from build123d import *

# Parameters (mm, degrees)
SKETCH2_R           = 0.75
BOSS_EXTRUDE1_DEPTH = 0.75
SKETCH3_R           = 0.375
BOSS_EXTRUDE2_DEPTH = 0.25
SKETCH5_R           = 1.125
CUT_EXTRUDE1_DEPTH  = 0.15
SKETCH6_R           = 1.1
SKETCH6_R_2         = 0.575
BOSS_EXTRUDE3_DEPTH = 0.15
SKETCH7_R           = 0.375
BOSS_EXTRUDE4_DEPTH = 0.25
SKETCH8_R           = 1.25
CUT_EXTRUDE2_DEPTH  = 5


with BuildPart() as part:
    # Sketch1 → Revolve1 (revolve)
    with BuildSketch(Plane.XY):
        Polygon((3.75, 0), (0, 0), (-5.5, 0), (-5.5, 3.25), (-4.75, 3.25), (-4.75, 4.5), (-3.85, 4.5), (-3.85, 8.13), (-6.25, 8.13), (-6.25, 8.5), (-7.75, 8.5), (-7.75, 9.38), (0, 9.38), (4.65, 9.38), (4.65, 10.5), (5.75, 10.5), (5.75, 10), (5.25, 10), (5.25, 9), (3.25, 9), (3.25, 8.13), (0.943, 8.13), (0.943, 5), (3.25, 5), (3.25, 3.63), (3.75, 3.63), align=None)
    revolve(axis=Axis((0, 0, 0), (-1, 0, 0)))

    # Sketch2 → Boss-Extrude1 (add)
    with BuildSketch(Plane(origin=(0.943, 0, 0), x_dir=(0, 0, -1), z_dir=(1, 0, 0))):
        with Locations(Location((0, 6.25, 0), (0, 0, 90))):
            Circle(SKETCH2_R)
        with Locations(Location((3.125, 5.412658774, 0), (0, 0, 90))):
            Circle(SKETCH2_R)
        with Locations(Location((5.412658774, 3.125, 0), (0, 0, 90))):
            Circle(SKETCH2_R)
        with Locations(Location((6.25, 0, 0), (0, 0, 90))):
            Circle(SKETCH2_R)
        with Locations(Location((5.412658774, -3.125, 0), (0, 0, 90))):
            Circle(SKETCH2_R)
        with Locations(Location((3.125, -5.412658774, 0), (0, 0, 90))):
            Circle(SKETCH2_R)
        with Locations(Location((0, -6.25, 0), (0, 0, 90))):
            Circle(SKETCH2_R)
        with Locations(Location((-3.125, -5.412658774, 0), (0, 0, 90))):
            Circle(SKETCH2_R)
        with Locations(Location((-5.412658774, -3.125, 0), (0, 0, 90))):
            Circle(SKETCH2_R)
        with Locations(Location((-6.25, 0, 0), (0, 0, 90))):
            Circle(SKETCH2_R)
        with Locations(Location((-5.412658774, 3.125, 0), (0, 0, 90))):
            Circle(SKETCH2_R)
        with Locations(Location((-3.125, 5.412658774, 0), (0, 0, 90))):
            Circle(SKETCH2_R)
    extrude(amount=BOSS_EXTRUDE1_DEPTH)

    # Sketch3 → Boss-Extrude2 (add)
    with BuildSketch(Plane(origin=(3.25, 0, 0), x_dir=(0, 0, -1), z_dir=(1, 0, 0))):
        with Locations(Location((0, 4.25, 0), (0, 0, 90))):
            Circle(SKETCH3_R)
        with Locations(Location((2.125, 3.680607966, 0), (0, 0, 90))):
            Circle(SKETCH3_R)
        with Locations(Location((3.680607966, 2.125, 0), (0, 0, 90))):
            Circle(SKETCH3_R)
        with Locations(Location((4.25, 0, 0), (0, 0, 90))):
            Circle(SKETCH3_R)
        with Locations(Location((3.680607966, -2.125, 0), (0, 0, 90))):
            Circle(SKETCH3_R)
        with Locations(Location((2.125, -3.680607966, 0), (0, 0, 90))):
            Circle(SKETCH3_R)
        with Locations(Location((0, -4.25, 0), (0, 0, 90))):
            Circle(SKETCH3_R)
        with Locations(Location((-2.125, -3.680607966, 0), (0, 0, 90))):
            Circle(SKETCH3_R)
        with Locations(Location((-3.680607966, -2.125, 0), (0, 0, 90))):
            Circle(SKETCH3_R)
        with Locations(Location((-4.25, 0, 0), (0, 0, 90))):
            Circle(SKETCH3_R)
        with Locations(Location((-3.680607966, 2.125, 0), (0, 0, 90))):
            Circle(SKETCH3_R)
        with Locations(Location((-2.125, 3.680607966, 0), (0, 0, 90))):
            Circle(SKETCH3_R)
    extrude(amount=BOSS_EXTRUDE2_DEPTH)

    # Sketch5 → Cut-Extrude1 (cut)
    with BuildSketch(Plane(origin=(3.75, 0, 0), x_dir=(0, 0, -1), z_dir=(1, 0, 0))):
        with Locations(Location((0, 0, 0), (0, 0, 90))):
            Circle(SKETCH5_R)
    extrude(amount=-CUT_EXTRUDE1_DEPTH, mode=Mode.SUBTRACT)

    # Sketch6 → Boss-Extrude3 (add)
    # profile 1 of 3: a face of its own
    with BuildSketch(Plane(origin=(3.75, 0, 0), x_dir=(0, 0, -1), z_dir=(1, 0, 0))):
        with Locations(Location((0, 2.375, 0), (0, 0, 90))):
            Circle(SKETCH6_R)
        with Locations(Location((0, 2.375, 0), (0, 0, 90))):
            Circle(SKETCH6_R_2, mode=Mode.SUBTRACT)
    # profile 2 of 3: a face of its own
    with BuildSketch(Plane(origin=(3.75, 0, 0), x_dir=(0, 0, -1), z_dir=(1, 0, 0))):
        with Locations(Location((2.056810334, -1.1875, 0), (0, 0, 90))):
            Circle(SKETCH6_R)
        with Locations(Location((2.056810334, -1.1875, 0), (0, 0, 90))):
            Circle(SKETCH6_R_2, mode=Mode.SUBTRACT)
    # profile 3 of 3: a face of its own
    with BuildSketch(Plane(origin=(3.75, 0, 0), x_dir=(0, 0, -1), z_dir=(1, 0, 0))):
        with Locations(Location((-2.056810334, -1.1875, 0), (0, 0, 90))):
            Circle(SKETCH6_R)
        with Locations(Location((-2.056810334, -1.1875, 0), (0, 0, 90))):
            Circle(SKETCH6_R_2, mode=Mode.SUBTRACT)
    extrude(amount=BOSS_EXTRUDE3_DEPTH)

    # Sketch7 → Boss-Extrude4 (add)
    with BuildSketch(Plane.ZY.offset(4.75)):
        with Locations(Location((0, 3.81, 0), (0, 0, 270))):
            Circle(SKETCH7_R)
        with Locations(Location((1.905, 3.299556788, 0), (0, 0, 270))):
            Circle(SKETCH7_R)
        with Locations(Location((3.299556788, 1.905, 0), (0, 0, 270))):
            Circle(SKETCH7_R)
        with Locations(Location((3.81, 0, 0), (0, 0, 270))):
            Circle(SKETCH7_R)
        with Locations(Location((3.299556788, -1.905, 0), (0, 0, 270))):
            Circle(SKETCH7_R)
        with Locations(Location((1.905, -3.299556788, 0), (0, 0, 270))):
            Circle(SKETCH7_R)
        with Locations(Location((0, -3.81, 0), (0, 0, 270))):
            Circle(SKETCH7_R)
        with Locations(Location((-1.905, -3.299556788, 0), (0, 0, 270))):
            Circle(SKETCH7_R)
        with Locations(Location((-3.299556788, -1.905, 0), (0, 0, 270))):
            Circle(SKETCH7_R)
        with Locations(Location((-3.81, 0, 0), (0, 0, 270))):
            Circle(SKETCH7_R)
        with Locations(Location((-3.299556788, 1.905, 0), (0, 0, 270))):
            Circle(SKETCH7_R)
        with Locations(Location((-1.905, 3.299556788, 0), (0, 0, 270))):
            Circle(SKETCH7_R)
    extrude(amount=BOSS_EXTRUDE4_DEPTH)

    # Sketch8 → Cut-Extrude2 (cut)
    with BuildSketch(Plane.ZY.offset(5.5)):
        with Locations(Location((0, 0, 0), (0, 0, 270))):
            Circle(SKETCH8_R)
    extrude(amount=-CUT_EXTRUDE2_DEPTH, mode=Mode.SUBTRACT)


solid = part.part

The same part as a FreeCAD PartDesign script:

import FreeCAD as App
import Part
import Sketcher


def add_polygon(sketch, points):
    """Adds a closed chain of lines whose ends are joined by coincident constraints."""
    first, n = sketch.GeometryCount, len(points)
    for a, b in zip(points, points[1:] + points[:1]):
        sketch.addGeometry(Part.LineSegment(App.Vector(*a, 0), App.Vector(*b, 0)), False)
    for i in range(n):
        sketch.addConstraint(Sketcher.Constraint("Coincident", first + i, 2, first + (i + 1) % n, 1))

doc = App.newDocument("Part")
body = doc.addObject("PartDesign::Body", "Body")

sketch1 = doc.addObject("Sketcher::SketchObject", "Sketch")
body.addObject(sketch1)
sketch1.AttachmentSupport = (doc.XY_Plane, [""])
sketch1.MapMode = "FlatFace"
add_polygon(sketch1, [(-5.5, 0), (3.75, 0), (3.75, 3.63), (3.25, 3.63), (3.25, 5), (0.94, 5), (0.94, 8.13), (3.25, 8.13), (3.25, 9), (5.25, 9), (5.25, 10), (5.75, 10), (5.75, 10.5), (4.65, 10.5), (4.65, 9.38), (-7.75, 9.38), (-7.75, 8.5), (-6.25, 8.5), (-6.25, 8.13), (-3.85, 8.13), (-3.85, 4.5), (-4.75, 4.5), (-4.75, 3.25), (-5.5, 3.25)])
sketch1.addConstraint([
    Sketcher.Constraint("Horizontal", 0),
    Sketcher.Constraint("Vertical", 1),
    Sketcher.Constraint("Horizontal", 2),
    Sketcher.Constraint("Vertical", 3),
    Sketcher.Constraint("Horizontal", 4),
    Sketcher.Constraint("Vertical", 5),
    Sketcher.Constraint("Horizontal", 6),
    Sketcher.Constraint("Vertical", 7),
    Sketcher.Constraint("Horizontal", 8),
    Sketcher.Constraint("Vertical", 9),
    Sketcher.Constraint("Horizontal", 10),
    Sketcher.Constraint("Vertical", 11),
    Sketcher.Constraint("Horizontal", 12),
    Sketcher.Constraint("Vertical", 13),
    Sketcher.Constraint("Horizontal", 14),
    Sketcher.Constraint("Vertical", 15),
    Sketcher.Constraint("Horizontal", 16),
    Sketcher.Constraint("Vertical", 17),
    Sketcher.Constraint("Horizontal", 18),
    Sketcher.Constraint("Vertical", 19),
    Sketcher.Constraint("Horizontal", 20),
    Sketcher.Constraint("Vertical", 21),
    Sketcher.Constraint("Horizontal", 22),
    Sketcher.Constraint("Vertical", 23),
    Sketcher.Constraint("PointOnObject", 0, 2, -1),
    Sketcher.Constraint("Horizontal", 6, 2, 17, 2),
    Sketcher.Constraint("Vertical", 3, 2, 6, 2),
    Sketcher.Constraint("Equal", 2, 10),
    Sketcher.Constraint("Equal", 10, 11),
    Sketcher.Constraint("Equal", 1, 19),
    Sketcher.Constraint("DistanceX", 8, 1, 8, 2, 2.0),
    Sketcher.Constraint("DistanceY", 9, 1, 9, 2, 1.0),
    Sketcher.Constraint("DistanceX", 2, 2, 2, 1, 0.5),
    Sketcher.Constraint("DistanceX", 12, 2, 12, 1, 1.1),
    Sketcher.Constraint("DistanceX", 14, 2, 14, 1, 12.4),
    Sketcher.Constraint("DistanceX", 16, 1, 16, 2, 1.5),
    Sketcher.Constraint("DistanceX", 18, 1, 18, 2, 2.4),
    Sketcher.Constraint("DistanceX", 20, 2, 20, 1, 0.9),
    Sketcher.Constraint("DistanceY", -1, 1, 3, 2, 5.0),
    Sketcher.Constraint("DistanceY", -1, 1, 7, 2, 9.0),
    Sketcher.Constraint("DistanceY", 19, 2, 16, 2, 4.0),
    Sketcher.Constraint("DistanceX", 0, 1, 0, 2, 9.25),
    Sketcher.Constraint("DistanceY", 1, 1, 1, 2, 3.63),
    Sketcher.Constraint("DistanceY", 5, 1, 5, 2, 3.13),
    Sketcher.Constraint("DistanceY", 13, 2, 13, 1, 1.12),
    Sketcher.Constraint("DistanceY", 21, 2, 21, 1, 1.25),
    Sketcher.Constraint("DistanceX", 22, 2, -1, 1, 5.5),
    Sketcher.Constraint("DistanceX", 4, 2, 4, 1, 2.307),
])
revolution = doc.addObject("PartDesign::Revolution", "Revolution")
body.addObject(revolution)
revolution.Profile = sketch1
revolution.ReferenceAxis = (sketch1, ["H_Axis"])
revolution.Angle = 360

sketch2 = doc.addObject("Sketcher::SketchObject", "Sketch001")
body.addObject(sketch2)
sketch2.AttachmentSupport = (doc.YZ_Plane, [""])
sketch2.MapMode = "FlatFace"
sketch2.AttachmentOffset = App.Placement(App.Vector(0, 0, 0.943), App.Rotation())
sketch2.addGeometry([
    Part.Circle(App.Vector(6.2, 0, 0), App.Vector(0, 0, 1), 0.8),
    Part.Circle(App.Vector(5.4, -3.1, 0), App.Vector(0, 0, 1), 0.8),
    Part.Circle(App.Vector(3.1, -5.4, 0), App.Vector(0, 0, 1), 0.8),
    Part.Circle(App.Vector(0, -6.2, 0), App.Vector(0, 0, 1), 0.8),
    Part.Circle(App.Vector(-3.1, -5.4, 0), App.Vector(0, 0, 1), 0.8),
    Part.Circle(App.Vector(-5.4, -3.1, 0), App.Vector(0, 0, 1), 0.8),
    Part.Circle(App.Vector(-6.2, 0, 0), App.Vector(0, 0, 1), 0.8),
    Part.Circle(App.Vector(-5.4, 3.1, 0), App.Vector(0, 0, 1), 0.8),
    Part.Circle(App.Vector(-3.1, 5.4, 0), App.Vector(0, 0, 1), 0.8),
    Part.Circle(App.Vector(0, 6.2, 0), App.Vector(0, 0, 1), 0.8),
    Part.Circle(App.Vector(3.1, 5.4, 0), App.Vector(0, 0, 1), 0.8),
    Part.Circle(App.Vector(5.4, 3.1, 0), App.Vector(0, 0, 1), 0.8),
], False)
sketch2.addConstraint([
    Sketcher.Constraint("Equal", 0, 1),
    Sketcher.Constraint("Equal", 1, 2),
    Sketcher.Constraint("Equal", 2, 3),
    Sketcher.Constraint("Equal", 3, 4),
    Sketcher.Constraint("Equal", 4, 5),
    Sketcher.Constraint("Equal", 5, 6),
    Sketcher.Constraint("Equal", 6, 7),
    Sketcher.Constraint("Equal", 7, 8),
    Sketcher.Constraint("Equal", 8, 9),
    Sketcher.Constraint("Equal", 9, 10),
    Sketcher.Constraint("Equal", 10, 11),
    Sketcher.Constraint("Symmetric", 0, 3, 6, 3, -1, 1),
    Sketcher.Constraint("Symmetric", 1, 3, 7, 3, -1, 1),
    Sketcher.Constraint("Symmetric", 2, 3, 8, 3, -1, 1),
    Sketcher.Constraint("Symmetric", 3, 3, 9, 3, -1, 1),
    Sketcher.Constraint("Symmetric", 4, 3, 10, 3, -1, 1),
    Sketcher.Constraint("Symmetric", 5, 3, 11, 3, -1, 1),
    Sketcher.Constraint("Symmetric", 2, 3, 4, 3, -2),
    Sketcher.Constraint("Symmetric", 1, 3, 5, 3, -2),
    Sketcher.Constraint("PointOnObject", 0, 3, -1),
    Sketcher.Constraint("PointOnObject", 3, 3, -2),
    Sketcher.Constraint("Diameter", 0, 1.5),
    Sketcher.Constraint("DistanceX", -1, 1, 0, 3, 6.25),
    Sketcher.Constraint("DistanceY", 3, 3, -1, 1, 6.25),
    Sketcher.Constraint("DistanceX", 4, 3, 2, 3, 6.25),
    Sketcher.Constraint("DistanceY", 5, 3, 7, 3, 6.25),
    Sketcher.Constraint("DistanceX", -1, 1, 1, 3, 5.412659),
    Sketcher.Constraint("DistanceY", 2, 3, -1, 1, 5.412659),
])
pad1 = doc.addObject("PartDesign::Pad", "Pad")
body.addObject(pad1)
pad1.Profile = sketch2
pad1.Length = 0.75

sketch3 = doc.addObject("Sketcher::SketchObject", "Sketch002")
body.addObject(sketch3)
sketch3.AttachmentSupport = (doc.YZ_Plane, [""])
sketch3.MapMode = "FlatFace"
sketch3.AttachmentOffset = App.Placement(App.Vector(0, 0, 3.25), App.Rotation())
sketch3.addGeometry([
    Part.Circle(App.Vector(4.25, 0, 0), App.Vector(0, 0, 1), 0.38),
    Part.Circle(App.Vector(3.68, -2.12, 0), App.Vector(0, 0, 1), 0.38),
    Part.Circle(App.Vector(2.12, -3.68, 0), App.Vector(0, 0, 1), 0.38),
    Part.Circle(App.Vector(0, -4.25, 0), App.Vector(0, 0, 1), 0.38),
    Part.Circle(App.Vector(-2.12, -3.68, 0), App.Vector(0, 0, 1), 0.38),
    Part.Circle(App.Vector(-3.68, -2.12, 0), App.Vector(0, 0, 1), 0.38),
    Part.Circle(App.Vector(-4.25, 0, 0), App.Vector(0, 0, 1), 0.38),
    Part.Circle(App.Vector(-3.68, 2.12, 0), App.Vector(0, 0, 1), 0.38),
    Part.Circle(App.Vector(-2.12, 3.68, 0), App.Vector(0, 0, 1), 0.38),
    Part.Circle(App.Vector(0, 4.25, 0), App.Vector(0, 0, 1), 0.38),
    Part.Circle(App.Vector(2.12, 3.68, 0), App.Vector(0, 0, 1), 0.38),
    Part.Circle(App.Vector(3.68, 2.12, 0), App.Vector(0, 0, 1), 0.38),
], False)
sketch3.addConstraint([
    Sketcher.Constraint("Equal", 0, 1),
    Sketcher.Constraint("Equal", 1, 2),
    Sketcher.Constraint("Equal", 2, 3),
    Sketcher.Constraint("Equal", 3, 4),
    Sketcher.Constraint("Equal", 4, 5),
    Sketcher.Constraint("Equal", 5, 6),
    Sketcher.Constraint("Equal", 6, 7),
    Sketcher.Constraint("Equal", 7, 8),
    Sketcher.Constraint("Equal", 8, 9),
    Sketcher.Constraint("Equal", 9, 10),
    Sketcher.Constraint("Equal", 10, 11),
    Sketcher.Constraint("Symmetric", 0, 3, 6, 3, -1, 1),
    Sketcher.Constraint("Symmetric", 1, 3, 7, 3, -1, 1),
    Sketcher.Constraint("Symmetric", 2, 3, 8, 3, -1, 1),
    Sketcher.Constraint("Symmetric", 3, 3, 9, 3, -1, 1),
    Sketcher.Constraint("Symmetric", 4, 3, 10, 3, -1, 1),
    Sketcher.Constraint("Symmetric", 5, 3, 11, 3, -1, 1),
    Sketcher.Constraint("Symmetric", 2, 3, 4, 3, -2),
    Sketcher.Constraint("Symmetric", 1, 3, 5, 3, -2),
    Sketcher.Constraint("PointOnObject", 0, 3, -1),
    Sketcher.Constraint("PointOnObject", 3, 3, -2),
    Sketcher.Constraint("Diameter", 0, 0.75),
    Sketcher.Constraint("DistanceX", -1, 1, 0, 3, 4.25),
    Sketcher.Constraint("DistanceY", 3, 3, -1, 1, 4.25),
    Sketcher.Constraint("DistanceX", 4, 3, 2, 3, 4.25),
    Sketcher.Constraint("DistanceY", 5, 3, 7, 3, 4.25),
    Sketcher.Constraint("DistanceX", -1, 1, 1, 3, 3.680608),
    Sketcher.Constraint("DistanceY", 2, 3, -1, 1, 3.680608),
])
pad2 = doc.addObject("PartDesign::Pad", "Pad001")
body.addObject(pad2)
pad2.Profile = sketch3
pad2.Length = 0.25

sketch4 = doc.addObject("Sketcher::SketchObject", "Sketch003")
body.addObject(sketch4)
sketch4.AttachmentSupport = (doc.YZ_Plane, [""])
sketch4.MapMode = "FlatFace"
sketch4.AttachmentOffset = App.Placement(App.Vector(0, 0, 3.75), App.Rotation())
sketch4.addGeometry(Part.Circle(App.Vector(0, 0, 0), App.Vector(0, 0, 1), 1.1), False)
sketch4.addConstraint([
    Sketcher.Constraint("Coincident", 0, 3, -1, 1),
    Sketcher.Constraint("Diameter", 0, 2.25),
])
pocket1 = doc.addObject("PartDesign::Pocket", "Pocket")
body.addObject(pocket1)
pocket1.Profile = sketch4
pocket1.Length = 0.15

sketch5 = doc.addObject("Sketcher::SketchObject", "Sketch004")
body.addObject(sketch5)
sketch5.AttachmentSupport = (doc.YZ_Plane, [""])
sketch5.MapMode = "FlatFace"
sketch5.AttachmentOffset = App.Placement(App.Vector(0, 0, 3.75), App.Rotation())
sketch5.addGeometry([
    Part.Circle(App.Vector(2.4, 0, 0), App.Vector(0, 0, 1), 1.1),
    Part.Circle(App.Vector(2.4, 0, 0), App.Vector(0, 0, 1), 0.6),
    Part.Circle(App.Vector(-1.2, -2.1, 0), App.Vector(0, 0, 1), 1.1),
    Part.Circle(App.Vector(-1.2, -2.1, 0), App.Vector(0, 0, 1), 0.6),
    Part.Circle(App.Vector(-1.2, 2.1, 0), App.Vector(0, 0, 1), 1.1),
    Part.Circle(App.Vector(-1.2, 2.1, 0), App.Vector(0, 0, 1), 0.6),
], False)
sketch5.addConstraint([
    Sketcher.Constraint("Coincident", 1, 3, 0, 3),
    Sketcher.Constraint("Coincident", 3, 3, 2, 3),
    Sketcher.Constraint("Coincident", 5, 3, 4, 3),
    Sketcher.Constraint("Equal", 0, 2),
    Sketcher.Constraint("Equal", 1, 3),
    Sketcher.Constraint("Equal", 2, 4),
    Sketcher.Constraint("Equal", 3, 5),
    Sketcher.Constraint("Symmetric", 2, 3, 4, 3, -1),
    Sketcher.Constraint("PointOnObject", 0, 3, -1),
    Sketcher.Constraint("Diameter", 0, 2.2),
    Sketcher.Constraint("Diameter", 1, 1.15),
    Sketcher.Constraint("DistanceX", -1, 1, 0, 3, 2.375),
    Sketcher.Constraint("DistanceX", 2, 3, -1, 1, 1.1875),
    Sketcher.Constraint("DistanceY", 2, 3, -1, 1, 2.05681),
])
pad3 = doc.addObject("PartDesign::Pad", "Pad002")
body.addObject(pad3)
pad3.Profile = sketch5
pad3.Length = 0.15

sketch6 = doc.addObject("Sketcher::SketchObject", "Sketch005")
body.addObject(sketch6)
sketch6.AttachmentSupport = (doc.YZ_Plane, [""])
sketch6.MapMode = "FlatFace"
sketch6.AttachmentOffset = App.Placement(App.Vector(0, 0, -4.75), App.Rotation())
sketch6.addGeometry([
    Part.Circle(App.Vector(3.81, 0, 0), App.Vector(0, 0, 1), 0.38),
    Part.Circle(App.Vector(3.3, 1.91, 0), App.Vector(0, 0, 1), 0.38),
    Part.Circle(App.Vector(1.91, 3.3, 0), App.Vector(0, 0, 1), 0.38),
    Part.Circle(App.Vector(0, 3.81, 0), App.Vector(0, 0, 1), 0.38),
    Part.Circle(App.Vector(-1.91, 3.3, 0), App.Vector(0, 0, 1), 0.38),
    Part.Circle(App.Vector(-3.3, 1.91, 0), App.Vector(0, 0, 1), 0.38),
    Part.Circle(App.Vector(-3.81, 0, 0), App.Vector(0, 0, 1), 0.38),
    Part.Circle(App.Vector(-3.3, -1.91, 0), App.Vector(0, 0, 1), 0.38),
    Part.Circle(App.Vector(-1.91, -3.3, 0), App.Vector(0, 0, 1), 0.38),
    Part.Circle(App.Vector(0, -3.81, 0), App.Vector(0, 0, 1), 0.38),
    Part.Circle(App.Vector(1.91, -3.3, 0), App.Vector(0, 0, 1), 0.38),
    Part.Circle(App.Vector(3.3, -1.91, 0), App.Vector(0, 0, 1), 0.38),
], False)
sketch6.addConstraint([
    Sketcher.Constraint("Equal", 0, 1),
    Sketcher.Constraint("Equal", 1, 2),
    Sketcher.Constraint("Equal", 2, 3),
    Sketcher.Constraint("Equal", 3, 4),
    Sketcher.Constraint("Equal", 4, 5),
    Sketcher.Constraint("Equal", 5, 6),
    Sketcher.Constraint("Equal", 6, 7),
    Sketcher.Constraint("Equal", 7, 8),
    Sketcher.Constraint("Equal", 8, 9),
    Sketcher.Constraint("Equal", 9, 10),
    Sketcher.Constraint("Equal", 10, 11),
    Sketcher.Constraint("Symmetric", 0, 3, 6, 3, -1, 1),
    Sketcher.Constraint("Symmetric", 1, 3, 7, 3, -1, 1),
    Sketcher.Constraint("Symmetric", 2, 3, 8, 3, -1, 1),
    Sketcher.Constraint("Symmetric", 3, 3, 9, 3, -1, 1),
    Sketcher.Constraint("Symmetric", 4, 3, 10, 3, -1, 1),
    Sketcher.Constraint("Symmetric", 5, 3, 11, 3, -1, 1),
    Sketcher.Constraint("Symmetric", 2, 3, 4, 3, -2),
    Sketcher.Constraint("Symmetric", 1, 3, 5, 3, -2),
    Sketcher.Constraint("PointOnObject", 0, 3, -1),
    Sketcher.Constraint("PointOnObject", 3, 3, -2),
    Sketcher.Constraint("Diameter", 0, 0.75),
    Sketcher.Constraint("DistanceX", -1, 1, 0, 3, 3.81),
    Sketcher.Constraint("DistanceY", -1, 1, 3, 3, 3.81),
    Sketcher.Constraint("DistanceX", 4, 3, 2, 3, 3.81),
    Sketcher.Constraint("DistanceY", 7, 3, 5, 3, 3.81),
    Sketcher.Constraint("DistanceX", -1, 1, 1, 3, 3.299557),
    Sketcher.Constraint("DistanceY", -1, 1, 2, 3, 3.299557),
])
pad4 = doc.addObject("PartDesign::Pad", "Pad003")
body.addObject(pad4)
pad4.Profile = sketch6
pad4.Length = 0.25
pad4.Reversed = True

sketch7 = doc.addObject("Sketcher::SketchObject", "Sketch006")
body.addObject(sketch7)
sketch7.AttachmentSupport = (doc.YZ_Plane, [""])
sketch7.MapMode = "FlatFace"
sketch7.AttachmentOffset = App.Placement(App.Vector(0, 0, -5.5), App.Rotation())
sketch7.addGeometry(Part.Circle(App.Vector(0, 0, 0), App.Vector(0, 0, 1), 1.2), False)
sketch7.addConstraint([
    Sketcher.Constraint("Coincident", 0, 3, -1, 1),
    Sketcher.Constraint("Diameter", 0, 2.5),
])
pocket2 = doc.addObject("PartDesign::Pocket", "Pocket001")
body.addObject(pocket2)
pocket2.Profile = sketch7
pocket2.Length = 5
pocket2.Reversed = True

doc.recompute()
